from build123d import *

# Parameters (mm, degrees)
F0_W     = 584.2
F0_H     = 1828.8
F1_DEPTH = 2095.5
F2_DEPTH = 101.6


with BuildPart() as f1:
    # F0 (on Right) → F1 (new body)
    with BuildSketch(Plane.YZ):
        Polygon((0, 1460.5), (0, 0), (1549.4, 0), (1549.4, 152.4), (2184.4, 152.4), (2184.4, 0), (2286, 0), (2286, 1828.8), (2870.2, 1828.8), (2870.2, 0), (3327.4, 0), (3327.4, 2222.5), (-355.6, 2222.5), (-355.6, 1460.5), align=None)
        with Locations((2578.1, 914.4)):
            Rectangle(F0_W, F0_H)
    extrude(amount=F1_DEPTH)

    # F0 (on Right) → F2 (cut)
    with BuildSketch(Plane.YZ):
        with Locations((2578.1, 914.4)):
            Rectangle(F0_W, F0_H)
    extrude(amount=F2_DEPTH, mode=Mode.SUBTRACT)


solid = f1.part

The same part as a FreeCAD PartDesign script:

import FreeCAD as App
import Part
import Sketcher
from FreeCAD import Vector
Q = App.Units.Quantity

doc = App.newDocument("Part")
params = doc.addObject("Spreadsheet::Sheet", "Params")
for row, (alias, value) in enumerate([
    ("sketch1_width", "61 in"),
    ("sketch1_width2", "25 in"),
    ("sketch1_width3", "45 in"),
    ("sketch1_width4", "145 in"),
    ("sketch1_height", "6 in"),
    ("pad1_length", "82.5 in"),
    ("sketch2_width", "23 in"),
    ("sketch2_height", "72 in"),
    ("pocket1_length", "4 in"),
], start=1):
    params.set(f"A{row}", alias)
    params.set(f"B{row}", "=" + value)
    params.setAlias(f"B{row}", alias)

body = doc.addObject("PartDesign::Body", "Body")

# Sketch on YZ plane
sketch1 = body.newObject("Sketcher::SketchObject", "Sketch")
sketch1.AttachmentSupport = (doc.getObject("YZ_Plane"), [""])
sketch1.MapMode = "FlatFace"
sketch1.addGeometry(Part.LineSegment(Vector(0, 1460, 0), Vector(0, 0, 0)), False)
sketch1.addGeometry(Part.LineSegment(Vector(0, 0, 0), Vector(1549, 0, 0)), False)
sketch1.addGeometry(Part.LineSegment(Vector(1549, 0, 0), Vector(1549, 152, 0)), False)
sketch1.addGeometry(Part.LineSegment(Vector(1549, 152, 0), Vector(2184, 152, 0)), False)
sketch1.addGeometry(Part.LineSegment(Vector(2184, 152, 0), Vector(2184, 0, 0)), False)
sketch1.addGeometry(Part.LineSegment(Vector(2184, 0, 0), Vector(3327, 0, 0)), False)
sketch1.addGeometry(Part.LineSegment(Vector(3327, 0, 0), Vector(3327, 2222, 0)), False)
sketch1.addGeometry(Part.LineSegment(Vector(3327, 2222, 0), Vector(-356, 2222, 0)), False)
sketch1.addGeometry(Part.LineSegment(Vector(-356, 2222, 0), Vector(-356, 1460, 0)), False)
sketch1.addGeometry(Part.LineSegment(Vector(-356, 1460, 0), Vector(0, 1460, 0)), False)
sketch1.addConstraint(Sketcher.Constraint("Coincident", 0, 2, 1, 1))
sketch1.addConstraint(Sketcher.Constraint("Coincident", 1, 2, 2, 1))
sketch1.addConstraint(Sketcher.Constraint("Coincident", 2, 2, 3, 1))
sketch1.addConstraint(Sketcher.Constraint("Coincident", 3, 2, 4, 1))
sketch1.addConstraint(Sketcher.Constraint("Coincident", 4, 2, 5, 1))
sketch1.addConstraint(Sketcher.Constraint("Coincident", 5, 2, 6, 1))
sketch1.addConstraint(Sketcher.Constraint("Coincident", 6, 2, 7, 1))
sketch1.addConstraint(Sketcher.Constraint("Coincident", 7, 2, 8, 1))
sketch1.addConstraint(Sketcher.Constraint("Coincident", 8, 2, 9, 1))
sketch1.addConstraint(Sketcher.Constraint("Coincident", 9, 2, 0, 1))
sketch1.addConstraint(Sketcher.Constraint("Vertical", 0))
sketch1.addConstraint(Sketcher.Constraint("Horizontal", 1))
sketch1.addConstraint(Sketcher.Constraint("Vertical", 2))
sketch1.addConstraint(Sketcher.Constraint("Horizontal", 3))
sketch1.addConstraint(Sketcher.Constraint("Vertical", 4))
sketch1.addConstraint(Sketcher.Constraint("Horizontal", 5))
sketch1.addConstraint(Sketcher.Constraint("Vertical", 6))
sketch1.addConstraint(Sketcher.Constraint("Horizontal", 7))
sketch1.addConstraint(Sketcher.Constraint("Vertical", 8))
sketch1.addConstraint(Sketcher.Constraint("Horizontal", 9))
sketch1.addConstraint(Sketcher.Constraint("Coincident", 0, 2, -1, 1))
sketch1.addConstraint(Sketcher.Constraint("PointOnObject", 4, 2, -1))
sketch1.addConstraint(Sketcher.Constraint("DistanceX", 1, 1, 1, 2, Q("61 in")))
sketch1.addConstraint(Sketcher.Constraint("DistanceX", 3, 1, 3, 2, Q("25 in")))
sketch1.addConstraint(Sketcher.Constraint("DistanceX", 5, 1, 5, 2, Q("45 in")))
sketch1.addConstraint(Sketcher.Constraint("DistanceX", 7, 2, 7, 1, Q("145 in")))
sketch1.addConstraint(Sketcher.Constraint("DistanceY", 2, 1, 2, 2, Q("6 in")))
sketch1.addConstraint(Sketcher.Constraint("DistanceY", 8, 2, 8, 1, Q("30 in")))
sketch1.addConstraint(Sketcher.Constraint("DistanceY", 0, 2, 0, 1, Q("57.5 in")))
sketch1.setExpression("Constraints[22]", "Params.sketch1_width")
sketch1.setExpression("Constraints[23]", "Params.sketch1_width2")
sketch1.setExpression("Constraints[24]", "Params.sketch1_width3")
sketch1.setExpression("Constraints[25]", "Params.sketch1_width4")
sketch1.setExpression("Constraints[26]", "Params.sketch1_height")
pad1 = body.newObject("PartDesign::Pad", "Pad")
pad1.Profile = sketch1
pad1.setExpression("Length", "Params.pad1_length")

# Sketch on YZ plane
sketch2 = body.newObject("Sketcher::SketchObject", "Sketch001")
sketch2.AttachmentSupport = (doc.getObject("YZ_Plane"), [""])
sketch2.MapMode = "FlatFace"
sketch2.addGeometry(Part.LineSegment(Vector(2286, 1829, 0), Vector(2286, 0, 0)), False)
sketch2.addGeometry(Part.LineSegment(Vector(2286, 0, 0), Vector(2870, 0, 0)), False)
sketch2.addGeometry(Part.LineSegment(Vector(2870, 0, 0), Vector(2870, 1829, 0)), False)
sketch2.addGeometry(Part.LineSegment(Vector(2870, 1829, 0), Vector(2286, 1829, 0)), False)
sketch2.addConstraint(Sketcher.Constraint("Coincident", 0, 2, 1, 1))
sketch2.addConstraint(Sketcher.Constraint("Coincident", 1, 2, 2, 1))
sketch2.addConstraint(Sketcher.Constraint("Coincident", 2, 2, 3, 1))
sketch2.addConstraint(Sketcher.Constraint("Coincident", 3, 2, 0, 1))
sketch2.addConstraint(Sketcher.Constraint("Vertical", 0))
sketch2.addConstraint(Sketcher.Constraint("Horizontal", 1))
sketch2.addConstraint(Sketcher.Constraint("Vertical", 2))
sketch2.addConstraint(Sketcher.Constraint("Horizontal", 3))
sketch2.addConstraint(Sketcher.Constraint("PointOnObject", 0, 2, -1))
sketch2.addConstraint(Sketcher.Constraint("DistanceX", 1, 1, 1, 2, Q("23 in")))
sketch2.addConstraint(Sketcher.Constraint("DistanceY", 0, 2, 0, 1, Q("72 in")))
sketch2.addConstraint(Sketcher.Constraint("DistanceX", -1, 1, 0, 2, Q("90 in")))
sketch2.setExpression("Constraints[9]", "Params.sketch2_width")
sketch2.setExpression("Constraints[10]", "Params.sketch2_height")
pocket1 = body.newObject("PartDesign::Pocket", "Pocket")
pocket1.Profile = sketch2
pocket1.setExpression("Length", "Params.pocket1_length")
pocket1.Reversed = True

doc.recompute()
